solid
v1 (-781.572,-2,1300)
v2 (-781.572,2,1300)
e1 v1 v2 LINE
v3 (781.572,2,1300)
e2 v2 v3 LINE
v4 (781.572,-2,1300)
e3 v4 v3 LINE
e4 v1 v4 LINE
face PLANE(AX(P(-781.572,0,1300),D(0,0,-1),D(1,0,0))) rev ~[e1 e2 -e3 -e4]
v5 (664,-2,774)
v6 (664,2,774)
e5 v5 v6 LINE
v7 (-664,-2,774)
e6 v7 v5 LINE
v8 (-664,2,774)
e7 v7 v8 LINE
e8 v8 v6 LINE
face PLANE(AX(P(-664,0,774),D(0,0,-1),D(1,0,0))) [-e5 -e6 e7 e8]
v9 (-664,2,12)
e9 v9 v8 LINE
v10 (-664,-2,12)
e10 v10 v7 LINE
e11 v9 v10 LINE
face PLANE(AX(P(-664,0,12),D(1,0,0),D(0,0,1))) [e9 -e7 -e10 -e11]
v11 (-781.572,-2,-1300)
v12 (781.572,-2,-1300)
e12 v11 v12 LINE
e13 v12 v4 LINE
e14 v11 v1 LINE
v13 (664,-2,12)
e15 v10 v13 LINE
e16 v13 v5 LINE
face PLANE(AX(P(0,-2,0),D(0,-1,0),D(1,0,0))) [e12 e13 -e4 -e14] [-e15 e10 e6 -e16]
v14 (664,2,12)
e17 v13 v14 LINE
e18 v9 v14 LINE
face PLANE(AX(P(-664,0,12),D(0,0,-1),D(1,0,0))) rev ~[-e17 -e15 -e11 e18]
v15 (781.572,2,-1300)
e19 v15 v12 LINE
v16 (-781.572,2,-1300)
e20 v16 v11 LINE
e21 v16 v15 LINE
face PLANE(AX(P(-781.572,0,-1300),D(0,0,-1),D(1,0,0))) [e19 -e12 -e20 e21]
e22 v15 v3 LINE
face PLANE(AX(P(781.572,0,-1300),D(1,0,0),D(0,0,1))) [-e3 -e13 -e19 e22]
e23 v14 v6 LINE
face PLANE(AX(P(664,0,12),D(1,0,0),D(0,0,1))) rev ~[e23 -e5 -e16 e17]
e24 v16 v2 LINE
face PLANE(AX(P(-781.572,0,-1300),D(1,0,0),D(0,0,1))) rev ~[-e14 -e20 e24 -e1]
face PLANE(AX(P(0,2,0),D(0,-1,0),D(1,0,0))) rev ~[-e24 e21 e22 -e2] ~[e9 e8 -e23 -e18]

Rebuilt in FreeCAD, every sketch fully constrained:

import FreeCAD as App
import Part
import Sketcher

V = App.Vector
Q = App.Units.Quantity

doc = App.newDocument("Part")
body = doc.addObject("PartDesign::Body", "Body")

# Sketch on XZ plane
sketch1 = body.newObject("Sketcher::SketchObject", "Sketch")
sketch1.AttachmentSupport = (doc.getObject("XZ_Plane"), [""])
sketch1.MapMode = "FlatFace"
sketch1.addGeometry(Part.LineSegment(V(-782, 1300, 0), V(-782, -1300, 0)), False)
sketch1.addGeometry(Part.LineSegment(V(-782, -1300, 0), V(782, -1300, 0)), False)
sketch1.addGeometry(Part.LineSegment(V(782, -1300, 0), V(782, 1300, 0)), False)
sketch1.addGeometry(Part.LineSegment(V(782, 1300, 0), V(-782, 1300, 0)), False)
sketch1.addGeometry(Part.LineSegment(V(664, 12, 0), V(-664, 12, 0)), False)
sketch1.addGeometry(Part.LineSegment(V(-664, 12, 0), V(-664, 774, 0)), False)
sketch1.addGeometry(Part.LineSegment(V(-664, 774, 0), V(664, 774, 0)), False)
sketch1.addGeometry(Part.LineSegment(V(664, 774, 0), V(664, 12, 0)), False)
sketch1.addConstraint(Sketcher.Constraint("Coincident", 0, 2, 1, 1))
sketch1.addConstraint(Sketcher.Constraint("Coincident", 1, 2, 2, 1))
sketch1.addConstraint(Sketcher.Constraint("Coincident", 2, 2, 3, 1))
sketch1.addConstraint(Sketcher.Constraint("Coincident", 3, 2, 0, 1))
sketch1.addConstraint(Sketcher.Constraint("Coincident", 4, 2, 5, 1))
sketch1.addConstraint(Sketcher.Constraint("Coincident", 5, 2, 6, 1))
sketch1.addConstraint(Sketcher.Constraint("Coincident", 6, 2, 7, 1))
sketch1.addConstraint(Sketcher.Constraint("Coincident", 7, 2, 4, 1))
sketch1.addConstraint(Sketcher.Constraint("Vertical", 0))
sketch1.addConstraint(Sketcher.Constraint("Horizontal", 1))
sketch1.addConstraint(Sketcher.Constraint("Vertical", 2))
sketch1.addConstraint(Sketcher.Constraint("Horizontal", 3))
sketch1.addConstraint(Sketcher.Constraint("Horizontal", 4))
sketch1.addConstraint(Sketcher.Constraint("Vertical", 5))
sketch1.addConstraint(Sketcher.Constraint("Horizontal", 6))
sketch1.addConstraint(Sketcher.Constraint("Vertical", 7))
sketch1.addConstraint(Sketcher.Constraint("Symmetric", 0, 2, 2, 2, -1, 1))
sketch1.addConstraint(Sketcher.Constraint("DistanceX", 4, 2, 4, 1, Q("1328 mm")))
sketch1.addConstraint(Sketcher.Constraint("DistanceY", 0, 2, 0, 1, Q("2600 mm")))
sketch1.addConstraint(Sketcher.Constraint("DistanceY", 5, 1, 5, 2, Q("762 mm")))
sketch1.addConstraint(Sketcher.Constraint("DistanceX", 4, 2, -1, 1, Q("664 mm")))
sketch1.addConstraint(Sketcher.Constraint("DistanceY", -1, 1, 4, 2, Q("12 mm")))
sketch1.addConstraint(Sketcher.Constraint("DistanceX", 1, 1, 1, 2, Q("1563.144 mm")))
pad1 = body.newObject("PartDesign::Pad", "Pad")
pad1.Profile = sketch1
pad1.Length = 4
pad1.Midplane = True

doc.recompute()
